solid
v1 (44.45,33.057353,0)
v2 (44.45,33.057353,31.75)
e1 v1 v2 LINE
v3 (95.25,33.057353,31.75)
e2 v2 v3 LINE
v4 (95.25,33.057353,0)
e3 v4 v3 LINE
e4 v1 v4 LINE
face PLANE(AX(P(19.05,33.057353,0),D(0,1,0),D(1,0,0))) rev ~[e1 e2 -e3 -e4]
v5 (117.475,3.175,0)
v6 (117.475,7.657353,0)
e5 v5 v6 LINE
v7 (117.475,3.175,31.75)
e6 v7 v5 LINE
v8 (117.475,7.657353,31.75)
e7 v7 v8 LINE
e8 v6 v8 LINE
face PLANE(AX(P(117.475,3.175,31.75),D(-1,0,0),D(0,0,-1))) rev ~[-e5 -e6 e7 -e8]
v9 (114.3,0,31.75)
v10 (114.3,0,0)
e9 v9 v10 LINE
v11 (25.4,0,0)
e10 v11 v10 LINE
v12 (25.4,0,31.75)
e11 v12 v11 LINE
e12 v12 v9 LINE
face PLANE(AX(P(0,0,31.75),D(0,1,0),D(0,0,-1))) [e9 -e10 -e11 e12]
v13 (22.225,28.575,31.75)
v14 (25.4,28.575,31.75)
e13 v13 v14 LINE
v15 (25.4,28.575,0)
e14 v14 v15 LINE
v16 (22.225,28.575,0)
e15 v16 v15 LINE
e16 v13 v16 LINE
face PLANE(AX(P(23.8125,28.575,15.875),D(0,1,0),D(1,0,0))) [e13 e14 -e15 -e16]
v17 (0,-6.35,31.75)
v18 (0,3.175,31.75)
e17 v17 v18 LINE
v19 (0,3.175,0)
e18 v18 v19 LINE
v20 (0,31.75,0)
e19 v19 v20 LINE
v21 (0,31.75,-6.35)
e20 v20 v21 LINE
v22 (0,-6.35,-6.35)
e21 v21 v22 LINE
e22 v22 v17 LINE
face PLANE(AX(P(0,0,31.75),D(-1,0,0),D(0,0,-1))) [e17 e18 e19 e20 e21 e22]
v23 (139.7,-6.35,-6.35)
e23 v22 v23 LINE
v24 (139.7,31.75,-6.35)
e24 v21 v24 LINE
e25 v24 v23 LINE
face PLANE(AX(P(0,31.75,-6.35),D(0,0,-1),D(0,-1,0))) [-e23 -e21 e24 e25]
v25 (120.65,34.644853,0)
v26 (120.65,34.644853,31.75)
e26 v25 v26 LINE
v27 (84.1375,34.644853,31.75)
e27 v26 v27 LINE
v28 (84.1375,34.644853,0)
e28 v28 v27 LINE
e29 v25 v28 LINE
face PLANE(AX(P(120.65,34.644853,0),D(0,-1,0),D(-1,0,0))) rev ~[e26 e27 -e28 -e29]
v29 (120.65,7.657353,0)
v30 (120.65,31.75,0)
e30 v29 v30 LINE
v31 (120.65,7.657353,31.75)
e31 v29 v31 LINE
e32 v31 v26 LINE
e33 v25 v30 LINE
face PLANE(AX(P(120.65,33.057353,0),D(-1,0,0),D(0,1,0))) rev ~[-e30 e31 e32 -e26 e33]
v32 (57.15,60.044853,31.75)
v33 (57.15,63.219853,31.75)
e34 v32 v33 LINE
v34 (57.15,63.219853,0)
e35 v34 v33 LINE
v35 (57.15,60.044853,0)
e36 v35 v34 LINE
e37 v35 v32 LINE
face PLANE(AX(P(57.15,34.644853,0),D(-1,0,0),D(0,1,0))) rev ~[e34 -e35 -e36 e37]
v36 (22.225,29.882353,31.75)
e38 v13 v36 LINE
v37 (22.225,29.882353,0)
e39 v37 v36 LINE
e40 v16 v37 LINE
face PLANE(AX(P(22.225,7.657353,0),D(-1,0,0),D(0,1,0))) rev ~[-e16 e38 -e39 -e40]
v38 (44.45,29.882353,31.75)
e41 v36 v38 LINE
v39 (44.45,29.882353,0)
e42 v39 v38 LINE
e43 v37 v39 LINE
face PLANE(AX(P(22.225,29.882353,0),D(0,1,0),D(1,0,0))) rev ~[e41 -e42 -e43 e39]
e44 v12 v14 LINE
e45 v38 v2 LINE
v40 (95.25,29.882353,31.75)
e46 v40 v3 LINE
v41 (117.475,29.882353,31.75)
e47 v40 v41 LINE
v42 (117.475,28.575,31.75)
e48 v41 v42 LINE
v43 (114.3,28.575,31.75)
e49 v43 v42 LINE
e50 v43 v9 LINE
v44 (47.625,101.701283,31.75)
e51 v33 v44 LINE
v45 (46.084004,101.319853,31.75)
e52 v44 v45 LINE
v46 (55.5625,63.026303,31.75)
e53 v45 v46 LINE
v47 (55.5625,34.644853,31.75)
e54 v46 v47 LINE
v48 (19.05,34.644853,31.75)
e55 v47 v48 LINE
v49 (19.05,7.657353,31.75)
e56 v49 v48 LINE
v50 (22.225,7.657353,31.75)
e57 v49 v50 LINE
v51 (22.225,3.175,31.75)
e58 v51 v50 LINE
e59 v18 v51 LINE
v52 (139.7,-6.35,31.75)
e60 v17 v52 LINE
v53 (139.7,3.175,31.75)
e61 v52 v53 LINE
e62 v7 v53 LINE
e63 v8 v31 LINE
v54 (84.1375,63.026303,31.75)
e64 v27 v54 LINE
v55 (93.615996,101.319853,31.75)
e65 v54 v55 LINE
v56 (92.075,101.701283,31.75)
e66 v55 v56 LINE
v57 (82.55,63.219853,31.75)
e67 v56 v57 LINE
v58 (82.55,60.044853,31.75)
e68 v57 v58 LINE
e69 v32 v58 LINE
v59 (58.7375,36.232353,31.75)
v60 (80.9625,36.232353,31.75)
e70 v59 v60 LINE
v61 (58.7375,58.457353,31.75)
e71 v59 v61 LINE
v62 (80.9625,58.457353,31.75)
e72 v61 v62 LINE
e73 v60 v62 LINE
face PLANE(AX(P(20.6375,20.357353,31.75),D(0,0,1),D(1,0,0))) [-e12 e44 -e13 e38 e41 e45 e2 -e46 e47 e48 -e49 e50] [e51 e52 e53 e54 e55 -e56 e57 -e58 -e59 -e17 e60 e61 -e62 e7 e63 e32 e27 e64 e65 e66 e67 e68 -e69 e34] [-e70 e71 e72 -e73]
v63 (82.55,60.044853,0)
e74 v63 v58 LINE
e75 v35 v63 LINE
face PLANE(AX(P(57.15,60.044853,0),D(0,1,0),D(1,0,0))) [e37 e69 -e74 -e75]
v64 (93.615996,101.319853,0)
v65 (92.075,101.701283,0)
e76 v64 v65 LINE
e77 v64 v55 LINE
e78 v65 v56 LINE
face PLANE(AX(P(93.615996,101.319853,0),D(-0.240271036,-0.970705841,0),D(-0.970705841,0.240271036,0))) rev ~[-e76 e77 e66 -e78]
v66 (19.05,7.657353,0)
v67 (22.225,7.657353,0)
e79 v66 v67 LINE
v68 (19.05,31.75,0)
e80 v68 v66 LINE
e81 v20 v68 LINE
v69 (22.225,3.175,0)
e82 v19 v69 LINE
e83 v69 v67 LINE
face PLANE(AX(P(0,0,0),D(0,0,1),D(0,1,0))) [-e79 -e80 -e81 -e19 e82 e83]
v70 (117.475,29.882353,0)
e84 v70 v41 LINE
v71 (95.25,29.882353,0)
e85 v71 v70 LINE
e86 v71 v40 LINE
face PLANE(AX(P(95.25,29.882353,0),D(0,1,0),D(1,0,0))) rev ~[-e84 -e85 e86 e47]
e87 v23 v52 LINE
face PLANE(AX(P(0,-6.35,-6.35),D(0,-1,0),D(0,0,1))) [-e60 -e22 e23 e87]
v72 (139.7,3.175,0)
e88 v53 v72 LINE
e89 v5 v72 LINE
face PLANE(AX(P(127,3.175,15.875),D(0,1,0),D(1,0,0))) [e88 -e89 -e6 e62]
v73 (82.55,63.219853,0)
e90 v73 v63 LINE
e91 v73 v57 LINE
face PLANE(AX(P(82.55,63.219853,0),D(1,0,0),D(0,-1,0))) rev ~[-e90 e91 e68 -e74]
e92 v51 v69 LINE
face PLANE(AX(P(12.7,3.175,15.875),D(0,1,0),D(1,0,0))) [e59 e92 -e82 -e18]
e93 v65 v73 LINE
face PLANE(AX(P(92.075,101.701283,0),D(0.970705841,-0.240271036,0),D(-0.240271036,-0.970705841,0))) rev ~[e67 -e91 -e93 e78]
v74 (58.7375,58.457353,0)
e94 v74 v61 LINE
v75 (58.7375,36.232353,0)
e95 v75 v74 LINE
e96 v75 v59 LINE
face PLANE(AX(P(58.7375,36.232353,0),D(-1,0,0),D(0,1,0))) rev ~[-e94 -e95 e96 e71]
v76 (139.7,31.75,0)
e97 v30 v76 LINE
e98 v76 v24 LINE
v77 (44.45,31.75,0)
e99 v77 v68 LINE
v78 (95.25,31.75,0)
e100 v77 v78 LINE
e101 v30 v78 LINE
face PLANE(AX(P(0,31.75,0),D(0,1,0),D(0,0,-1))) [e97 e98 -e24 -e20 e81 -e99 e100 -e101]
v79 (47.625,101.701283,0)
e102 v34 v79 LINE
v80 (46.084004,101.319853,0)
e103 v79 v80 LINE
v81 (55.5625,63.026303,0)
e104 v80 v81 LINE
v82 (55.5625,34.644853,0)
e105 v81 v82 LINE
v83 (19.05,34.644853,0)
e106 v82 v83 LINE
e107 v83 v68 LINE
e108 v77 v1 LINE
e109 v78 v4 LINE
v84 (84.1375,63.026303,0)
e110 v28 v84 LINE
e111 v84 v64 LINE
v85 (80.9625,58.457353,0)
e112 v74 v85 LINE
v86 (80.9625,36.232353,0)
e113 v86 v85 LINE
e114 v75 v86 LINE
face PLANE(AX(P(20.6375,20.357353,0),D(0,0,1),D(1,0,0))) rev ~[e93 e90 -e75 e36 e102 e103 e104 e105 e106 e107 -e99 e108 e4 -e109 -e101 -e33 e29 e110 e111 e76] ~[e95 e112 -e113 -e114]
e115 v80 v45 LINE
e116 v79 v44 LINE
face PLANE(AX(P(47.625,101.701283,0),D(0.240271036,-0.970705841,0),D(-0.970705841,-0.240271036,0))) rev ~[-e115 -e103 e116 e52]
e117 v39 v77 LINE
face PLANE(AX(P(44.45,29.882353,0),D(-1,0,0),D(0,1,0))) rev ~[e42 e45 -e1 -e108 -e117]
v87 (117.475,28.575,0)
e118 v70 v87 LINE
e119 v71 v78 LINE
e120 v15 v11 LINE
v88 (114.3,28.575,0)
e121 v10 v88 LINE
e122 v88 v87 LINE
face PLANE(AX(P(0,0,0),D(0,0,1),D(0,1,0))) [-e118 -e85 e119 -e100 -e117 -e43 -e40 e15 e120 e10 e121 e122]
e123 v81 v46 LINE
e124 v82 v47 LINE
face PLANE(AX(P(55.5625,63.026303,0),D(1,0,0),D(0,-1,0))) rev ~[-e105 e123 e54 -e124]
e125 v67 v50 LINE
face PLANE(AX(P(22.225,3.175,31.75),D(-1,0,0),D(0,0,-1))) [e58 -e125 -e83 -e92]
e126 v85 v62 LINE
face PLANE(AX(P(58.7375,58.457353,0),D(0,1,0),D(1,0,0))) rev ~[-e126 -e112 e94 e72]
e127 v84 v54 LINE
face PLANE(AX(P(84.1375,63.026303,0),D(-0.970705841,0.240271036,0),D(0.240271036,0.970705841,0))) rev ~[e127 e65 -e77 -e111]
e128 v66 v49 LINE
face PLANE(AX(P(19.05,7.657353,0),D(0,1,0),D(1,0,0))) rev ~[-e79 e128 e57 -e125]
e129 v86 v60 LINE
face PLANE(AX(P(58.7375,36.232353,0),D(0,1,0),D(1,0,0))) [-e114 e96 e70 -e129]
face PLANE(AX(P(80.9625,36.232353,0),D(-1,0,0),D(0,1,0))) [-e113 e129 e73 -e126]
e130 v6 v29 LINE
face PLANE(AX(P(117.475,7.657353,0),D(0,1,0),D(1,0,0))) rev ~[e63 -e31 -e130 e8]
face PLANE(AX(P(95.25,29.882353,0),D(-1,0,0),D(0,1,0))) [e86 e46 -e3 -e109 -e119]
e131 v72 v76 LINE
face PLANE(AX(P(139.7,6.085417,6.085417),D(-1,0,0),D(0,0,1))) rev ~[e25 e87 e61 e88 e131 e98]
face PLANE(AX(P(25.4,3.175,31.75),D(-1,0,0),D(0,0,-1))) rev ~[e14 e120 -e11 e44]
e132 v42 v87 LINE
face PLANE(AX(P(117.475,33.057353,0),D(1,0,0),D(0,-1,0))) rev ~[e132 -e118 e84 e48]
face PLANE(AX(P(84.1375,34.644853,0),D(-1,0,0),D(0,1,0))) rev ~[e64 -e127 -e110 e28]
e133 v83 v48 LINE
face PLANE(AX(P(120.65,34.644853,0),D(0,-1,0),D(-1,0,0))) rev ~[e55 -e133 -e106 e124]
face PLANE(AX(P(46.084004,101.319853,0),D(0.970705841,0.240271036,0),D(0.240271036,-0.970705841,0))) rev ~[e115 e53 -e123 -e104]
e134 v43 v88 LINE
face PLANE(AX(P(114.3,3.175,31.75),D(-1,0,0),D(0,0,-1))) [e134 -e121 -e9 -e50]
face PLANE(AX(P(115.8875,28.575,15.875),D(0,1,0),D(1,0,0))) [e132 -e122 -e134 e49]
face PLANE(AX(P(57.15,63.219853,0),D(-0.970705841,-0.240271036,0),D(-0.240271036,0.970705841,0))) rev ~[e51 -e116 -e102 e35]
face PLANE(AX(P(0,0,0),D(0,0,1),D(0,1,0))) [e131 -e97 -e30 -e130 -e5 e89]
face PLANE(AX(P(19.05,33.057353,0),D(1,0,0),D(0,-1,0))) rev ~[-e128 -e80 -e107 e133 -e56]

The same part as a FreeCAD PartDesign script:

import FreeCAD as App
import Part
import Sketcher
Q = App.Units.Quantity

doc = App.newDocument("Part")
body = doc.addObject("PartDesign::Body", "Body")

sketch1 = doc.addObject("Sketcher::SketchObject", "Sketch")
body.addObject(sketch1)
sketch1.AttachmentSupport = (doc.YZ_Plane, [""])
sketch1.MapMode = "FlatFace"
sketch1.addGeometry([
    Part.LineSegment(App.Vector(0, 0, 0), App.Vector(0, 32, 0)),
    Part.LineSegment(App.Vector(0, 32, 0), App.Vector(-6, 32, 0)),
    Part.LineSegment(App.Vector(-6, 32, 0), App.Vector(-6, -6, 0)),
    Part.LineSegment(App.Vector(-6, -6, 0), App.Vector(32, -6, 0)),
    Part.LineSegment(App.Vector(32, -6, 0), App.Vector(32, 0, 0)),
    Part.LineSegment(App.Vector(32, 0, 0), App.Vector(0, 0, 0)),
], False)
sketch1.addConstraint([
    Sketcher.Constraint("Coincident", 0, 2, 1, 1),
    Sketcher.Constraint("Coincident", 1, 2, 2, 1),
    Sketcher.Constraint("Coincident", 2, 2, 3, 1),
    Sketcher.Constraint("Coincident", 3, 2, 4, 1),
    Sketcher.Constraint("Coincident", 4, 2, 5, 1),
    Sketcher.Constraint("Coincident", 5, 2, 0, 1),
    Sketcher.Constraint("Vertical", 0),
    Sketcher.Constraint("Horizontal", 1),
    Sketcher.Constraint("Vertical", 2),
    Sketcher.Constraint("Horizontal", 3),
    Sketcher.Constraint("Vertical", 4),
    Sketcher.Constraint("Horizontal", 5),
    Sketcher.Constraint("Coincident", 5, 2, -1, 1),
    Sketcher.Constraint("Equal", 5, 0),
    Sketcher.Constraint("Equal", 3, 2),
    Sketcher.Constraint("DistanceX", 3, 1, 3, 2, Q("1.5 in")),
    Sketcher.Constraint("DistanceX", 1, 2, 1, 1, Q("0.25 in")),
])
pad1 = doc.addObject("PartDesign::Pad", "Pad")
body.addObject(pad1)
pad1.Profile = sketch1
pad1.Length = Q("5.5 in")

sketch2 = doc.addObject("Sketcher::SketchObject", "Sketch001")
body.addObject(sketch2)
sketch2.AttachmentSupport = (doc.XZ_Plane, [""])
sketch2.MapMode = "FlatFace"
sketch2.addGeometry([
    Part.LineSegment(App.Vector(0, 0, 0), App.Vector(0, 32, 0)),
    Part.LineSegment(App.Vector(0, 32, 0), App.Vector(25, 32, 0)),
    Part.LineSegment(App.Vector(25, 32, 0), App.Vector(25, 0, 0)),
    Part.LineSegment(App.Vector(25, 0, 0), App.Vector(0, 0, 0)),
    Part.LineSegment(App.Vector(114, 0, 0), App.Vector(114, 32, 0)),
    Part.LineSegment(App.Vector(114, 32, 0), App.Vector(140, 32, 0)),
    Part.LineSegment(App.Vector(140, 32, 0), App.Vector(140, 0, 0)),
    Part.LineSegment(App.Vector(140, 0, 0), App.Vector(114, 0, 0)),
], False)
sketch2.addConstraint([
    Sketcher.Constraint("Coincident", 0, 2, 1, 1),
    Sketcher.Constraint("Coincident", 1, 2, 2, 1),
    Sketcher.Constraint("Coincident", 2, 2, 3, 1),
    Sketcher.Constraint("Coincident", 3, 2, 0, 1),
    Sketcher.Constraint("Coincident", 4, 2, 5, 1),
    Sketcher.Constraint("Coincident", 5, 2, 6, 1),
    Sketcher.Constraint("Coincident", 6, 2, 7, 1),
    Sketcher.Constraint("Coincident", 7, 2, 4, 1),
    Sketcher.Constraint("Vertical", 0),
    Sketcher.Constraint("Horizontal", 1),
    Sketcher.Constraint("Vertical", 2),
    Sketcher.Constraint("Horizontal", 3),
    Sketcher.Constraint("Vertical", 4),
    Sketcher.Constraint("Horizontal", 5),
    Sketcher.Constraint("Vertical", 6),
    Sketcher.Constraint("Horizontal", 7),
    Sketcher.Constraint("Coincident", 3, 2, -1, 1),
    Sketcher.Constraint("PointOnObject", 6, 2, -1),
    Sketcher.Constraint("Horizontal", 1, 2, 4, 2),
    Sketcher.Constraint("Equal", 3, 5),
    Sketcher.Constraint("DistanceX", 1, 1, 1, 2, Q("1 in")),
    Sketcher.Constraint("DistanceY", 0, 1, 0, 2, Q("1.25 in")),
    Sketcher.Constraint("DistanceX", -1, 1, 4, 2, Q("4.5 in")),
])
pad2 = doc.addObject("PartDesign::Pad", "Pad001")
body.addObject(pad2)
pad2.Profile = sketch2
pad2.Length = Q("0.125 in")
pad2.Reversed = True

sketch3 = doc.addObject("Sketcher::SketchObject", "Sketch002")
body.addObject(sketch3)
sketch3.AttachmentSupport = (doc.XZ_Plane, [""])
sketch3.MapMode = "FlatFace"
sketch3.AttachmentOffset = App.Placement(App.Vector(0, 0, -0.125 * 25.4), App.Rotation())
sketch3.addGeometry([
    Part.LineSegment(App.Vector(22.2, 0, 0), App.Vector(22.2, 31.8, 0)),
    Part.LineSegment(App.Vector(22.2, 31.8, 0), App.Vector(25.4, 31.8, 0)),
    Part.LineSegment(App.Vector(25.4, 31.8, 0), App.Vector(25.4, 0, 0)),
    Part.LineSegment(App.Vector(25.4, 0, 0), App.Vector(22.2, 0, 0)),
    Part.LineSegment(App.Vector(114.3, 0, 0), App.Vector(114.3, 31.8, 0)),
    Part.LineSegment(App.Vector(114.3, 31.8, 0), App.Vector(117.5, 31.8, 0)),
    Part.LineSegment(App.Vector(117.5, 31.8, 0), App.Vector(117.5, 0, 0)),
    Part.LineSegment(App.Vector(117.5, 0, 0), App.Vector(114.3, 0, 0)),
], False)
sketch3.addConstraint([
    Sketcher.Constraint("Coincident", 0, 2, 1, 1),
    Sketcher.Constraint("Coincident", 1, 2, 2, 1),
    Sketcher.Constraint("Coincident", 2, 2, 3, 1),
    Sketcher.Constraint("Coincident", 3, 2, 0, 1),
    Sketcher.Constraint("Coincident", 4, 2, 5, 1),
    Sketcher.Constraint("Coincident", 5, 2, 6, 1),
    Sketcher.Constraint("Coincident", 6, 2, 7, 1),
    Sketcher.Constraint("Coincident", 7, 2, 4, 1),
    Sketcher.Constraint("Vertical", 0),
    Sketcher.Constraint("Horizontal", 1),
    Sketcher.Constraint("Vertical", 2),
    Sketcher.Constraint("Horizontal", 3),
    Sketcher.Constraint("Vertical", 4),
    Sketcher.Constraint("Horizontal", 5),
    Sketcher.Constraint("Vertical", 6),
    Sketcher.Constraint("Horizontal", 7),
    Sketcher.Constraint("PointOnObject", 2, 2, -1),
    Sketcher.Constraint("PointOnObject", 6, 2, -1),
    Sketcher.Constraint("Horizontal", 1, 2, 4, 2),
    Sketcher.Constraint("Equal", 3, 5),
    Sketcher.Constraint("DistanceX", -1, 1, 1, 2, Q("1 in")),
    Sketcher.Constraint("DistanceY", 0, 1, 0, 2, Q("1.25 in")),
    Sketcher.Constraint("DistanceX", -1, 1, 4, 2, Q("4.5 in")),
    Sketcher.Constraint("DistanceX", 1, 1, 1, 2, Q("0.125 in")),
])
pad3 = doc.addObject("PartDesign::Pad", "Pad002")
body.addObject(pad3)
pad3.Profile = sketch3
pad3.Length = Q("1 in")
pad3.Reversed = True

sketch4 = doc.addObject("Sketcher::SketchObject", "Sketch003")
body.addObject(sketch4)
sketch4.AttachmentSupport = (doc.XY_Plane, [""])
sketch4.MapMode = "FlatFace"
sketch4.addGeometry([
    Part.LineSegment(App.Vector(19.1, 7.7, 0), App.Vector(22.2, 7.7, 0)),
    Part.LineSegment(App.Vector(22.2, 7.7, 0), App.Vector(22.2, 29.9, 0)),
    Part.LineSegment(App.Vector(22.2, 29.9, 0), App.Vector(44.5, 29.9, 0)),
    Part.LineSegment(App.Vector(44.5, 29.9, 0), App.Vector(44.5, 33.1, 0)),
    Part.LineSegment(App.Vector(44.5, 33.1, 0), App.Vector(95.2, 33.1, 0)),
    Part.LineSegment(App.Vector(95.2, 33.1, 0), App.Vector(95.2, 29.9, 0)),
    Part.LineSegment(App.Vector(95.2, 29.9, 0), App.Vector(117.5, 29.9, 0)),
    Part.LineSegment(App.Vector(117.5, 29.9, 0), App.Vector(117.5, 7.7, 0)),
    Part.LineSegment(App.Vector(117.5, 7.7, 0), App.Vector(120.7, 7.7, 0)),
    Part.LineSegment(App.Vector(120.7, 7.7, 0), App.Vector(120.7, 34.6, 0)),
    Part.LineSegment(App.Vector(120.7, 34.6, 0), App.Vector(84.1, 34.6, 0)),
    Part.LineSegment(App.Vector(84.1, 34.6, 0), App.Vector(84.1, 63, 0)),
    Part.LineSegment(App.Vector(84.1, 63, 0), App.Vector(93.6, 101.3, 0)),
    Part.LineSegment(App.Vector(93.6, 101.3, 0), App.Vector(92.1, 101.7, 0)),
    Part.LineSegment(App.Vector(92.1, 101.7, 0), App.Vector(82.5, 63.2, 0)),
    Part.LineSegment(App.Vector(82.5, 63.2, 0), App.Vector(82.5, 60, 0)),
    Part.LineSegment(App.Vector(82.5, 60, 0), App.Vector(57.1, 60, 0)),
    Part.LineSegment(App.Vector(57.1, 60, 0), App.Vector(57.1, 63.2, 0)),
    Part.LineSegment(App.Vector(57.1, 63.2, 0), App.Vector(47.6, 101.7, 0)),
    Part.LineSegment(App.Vector(47.6, 101.7, 0), App.Vector(46.1, 101.3, 0)),
    Part.LineSegment(App.Vector(46.1, 101.3, 0), App.Vector(55.6, 63, 0)),
    Part.LineSegment(App.Vector(55.6, 63, 0), App.Vector(55.6, 34.6, 0)),
    Part.LineSegment(App.Vector(55.6, 34.6, 0), App.Vector(19.1, 34.6, 0)),
    Part.LineSegment(App.Vector(19.1, 34.6, 0), App.Vector(19.1, 7.7, 0)),
    Part.LineSegment(App.Vector(58.7, 58.5, 0), App.Vector(81, 58.5, 0)),
    Part.LineSegment(App.Vector(81, 58.5, 0), App.Vector(81, 36.2, 0)),
    Part.LineSegment(App.Vector(81, 36.2, 0), App.Vector(58.7, 36.2, 0)),
    Part.LineSegment(App.Vector(58.7, 36.2, 0), App.Vector(58.7, 58.5, 0)),
], False)
sketch4.addConstraint([
    Sketcher.Constraint("Coincident", 0, 2, 1, 1),
    Sketcher.Constraint("Coincident", 1, 2, 2, 1),
    Sketcher.Constraint("Coincident", 2, 2, 3, 1),
    Sketcher.Constraint("Coincident", 3, 2, 4, 1),
    Sketcher.Constraint("Coincident", 4, 2, 5, 1),
    Sketcher.Constraint("Coincident", 5, 2, 6, 1),
    Sketcher.Constraint("Coincident", 6, 2, 7, 1),
    Sketcher.Constraint("Coincident", 7, 2, 8, 1),
    Sketcher.Constraint("Coincident", 8, 2, 9, 1),
    Sketcher.Constraint("Coincident", 9, 2, 10, 1),
    Sketcher.Constraint("Coincident", 10, 2, 11, 1),
    Sketcher.Constraint("Coincident", 11, 2, 12, 1),
    Sketcher.Constraint("Coincident", 12, 2, 13, 1),
    Sketcher.Constraint("Coincident", 13, 2, 14, 1),
    Sketcher.Constraint("Coincident", 14, 2, 15, 1),
    Sketcher.Constraint("Coincident", 15, 2, 16, 1),
    Sketcher.Constraint("Coincident", 16, 2, 17, 1),
    Sketcher.Constraint("Coincident", 17, 2, 18, 1),
    Sketcher.Constraint("Coincident", 18, 2, 19, 1),
    Sketcher.Constraint("Coincident", 19, 2, 20, 1),
    Sketcher.Constraint("Coincident", 20, 2, 21, 1),
    Sketcher.Constraint("Coincident", 21, 2, 22, 1),
    Sketcher.Constraint("Coincident", 22, 2, 23, 1),
    Sketcher.Constraint("Coincident", 23, 2, 0, 1),
    Sketcher.Constraint("Coincident", 24, 2, 25, 1),
    Sketcher.Constraint("Coincident", 25, 2, 26, 1),
    Sketcher.Constraint("Coincident", 26, 2, 27, 1),
    Sketcher.Constraint("Coincident", 27, 2, 24, 1),
    Sketcher.Constraint("Horizontal", 0),
    Sketcher.Constraint("Vertical", 1),
    Sketcher.Constraint("Horizontal", 2),
    Sketcher.Constraint("Vertical", 3),
    Sketcher.Constraint("Horizontal", 4),
    Sketcher.Constraint("Vertical", 5),
    Sketcher.Constraint("Horizontal", 6),
    Sketcher.Constraint("Vertical", 7),
    Sketcher.Constraint("Horizontal", 8),
    Sketcher.Constraint("Vertical", 9),
    Sketcher.Constraint("Horizontal", 10),
    Sketcher.Constraint("Vertical", 11),
    Sketcher.Constraint("Vertical", 15),
    Sketcher.Constraint("Horizontal", 16),
    Sketcher.Constraint("Vertical", 17),
    Sketcher.Constraint("Vertical", 21),
    Sketcher.Constraint("Horizontal", 22),
    Sketcher.Constraint("Vertical", 23),
    Sketcher.Constraint("Horizontal", 24),
    Sketcher.Constraint("Vertical", 25),
    Sketcher.Constraint("Horizontal", 26),
    Sketcher.Constraint("Vertical", 27),
    Sketcher.Constraint("Perpendicular", 12, 13),
    Sketcher.Constraint("Perpendicular", 13, 14),
    Sketcher.Constraint("Perpendicular", 18, 19),
    Sketcher.Constraint("Perpendicular", 19, 20),
    Sketcher.Constraint("Horizontal", 2, 2, 5, 2),
    Sketcher.Constraint("Horizontal", 0, 2, 7, 2),
    Sketcher.Constraint("Horizontal", 14, 2, 17, 2),
    Sketcher.Constraint("Horizontal", 13, 2, 18, 2),
    Sketcher.Constraint("Horizontal", 12, 2, 19, 2),
    Sketcher.Constraint("Horizontal", 11, 2, 20, 2),
    Sketcher.Constraint("Horizontal", 10, 2, 21, 2),
    Sketcher.Constraint("Equal", 2, 6),
    Sketcher.Constraint("Equal", 0, 8),
    Sketcher.Constraint("Equal", 10, 22),
    Sketcher.Constraint("Equal", 6, 24),
    Sketcher.Constraint("Equal", 26, 1),
    Sketcher.Constraint("Equal", 8, 3),
    Sketcher.Constraint("Equal", 5, 15),
    Sketcher.Constraint("Equal", 7, 25),
    Sketcher.Constraint("Equal", 14, 18),
    Sketcher.Constraint("DistanceX", 4, 1, 4, 2, Q("2 in")),
    Sketcher.Constraint("DistanceX", 16, 2, 16, 1, Q("1 in")),
    Sketcher.Constraint("DistanceY", 0, 2, 3, 2, Q("1 in")),
    Sketcher.Constraint("DistanceY", 10, 2, 15, 2, Q("1 in")),
    Sketcher.Constraint("DistanceY", 17, 2, 19, 2, Q("1.5 in")),
    Sketcher.Constraint("DistanceX", 0, 1, 0, 2, Q("0.125 in")),
    Sketcher.Constraint("DistanceX", 10, 2, 10, 1, Q("1.4375 in")),
    Sketcher.Constraint("DistanceY", 9, 1, 9, 2, Q("1.0625 in")),
    Sketcher.Constraint("DistanceX", -1, 1, 2, 2, Q("1.75 in")),
    Sketcher.Constraint("DistanceX", 18, 2, 13, 2, Q("1.75 in")),
    Sketcher.Constraint("DistanceY", 5, 2, 25, 2, Q("0.25 in")),
    Sketcher.Constraint("Distance", 13, Q("0.0625 in")),
    Sketcher.Constraint("DistanceX", -1, 1, 24, 2, Q("3.1875 in")),
    Sketcher.Constraint("DistanceY", -1, 1, 0, 2, Q("7.657353 mm")),
])
pad4 = doc.addObject("PartDesign::Pad", "Pad003")
body.addObject(pad4)
pad4.Profile = sketch4
pad4.Length = Q("1.25 in")

doc.recompute()
